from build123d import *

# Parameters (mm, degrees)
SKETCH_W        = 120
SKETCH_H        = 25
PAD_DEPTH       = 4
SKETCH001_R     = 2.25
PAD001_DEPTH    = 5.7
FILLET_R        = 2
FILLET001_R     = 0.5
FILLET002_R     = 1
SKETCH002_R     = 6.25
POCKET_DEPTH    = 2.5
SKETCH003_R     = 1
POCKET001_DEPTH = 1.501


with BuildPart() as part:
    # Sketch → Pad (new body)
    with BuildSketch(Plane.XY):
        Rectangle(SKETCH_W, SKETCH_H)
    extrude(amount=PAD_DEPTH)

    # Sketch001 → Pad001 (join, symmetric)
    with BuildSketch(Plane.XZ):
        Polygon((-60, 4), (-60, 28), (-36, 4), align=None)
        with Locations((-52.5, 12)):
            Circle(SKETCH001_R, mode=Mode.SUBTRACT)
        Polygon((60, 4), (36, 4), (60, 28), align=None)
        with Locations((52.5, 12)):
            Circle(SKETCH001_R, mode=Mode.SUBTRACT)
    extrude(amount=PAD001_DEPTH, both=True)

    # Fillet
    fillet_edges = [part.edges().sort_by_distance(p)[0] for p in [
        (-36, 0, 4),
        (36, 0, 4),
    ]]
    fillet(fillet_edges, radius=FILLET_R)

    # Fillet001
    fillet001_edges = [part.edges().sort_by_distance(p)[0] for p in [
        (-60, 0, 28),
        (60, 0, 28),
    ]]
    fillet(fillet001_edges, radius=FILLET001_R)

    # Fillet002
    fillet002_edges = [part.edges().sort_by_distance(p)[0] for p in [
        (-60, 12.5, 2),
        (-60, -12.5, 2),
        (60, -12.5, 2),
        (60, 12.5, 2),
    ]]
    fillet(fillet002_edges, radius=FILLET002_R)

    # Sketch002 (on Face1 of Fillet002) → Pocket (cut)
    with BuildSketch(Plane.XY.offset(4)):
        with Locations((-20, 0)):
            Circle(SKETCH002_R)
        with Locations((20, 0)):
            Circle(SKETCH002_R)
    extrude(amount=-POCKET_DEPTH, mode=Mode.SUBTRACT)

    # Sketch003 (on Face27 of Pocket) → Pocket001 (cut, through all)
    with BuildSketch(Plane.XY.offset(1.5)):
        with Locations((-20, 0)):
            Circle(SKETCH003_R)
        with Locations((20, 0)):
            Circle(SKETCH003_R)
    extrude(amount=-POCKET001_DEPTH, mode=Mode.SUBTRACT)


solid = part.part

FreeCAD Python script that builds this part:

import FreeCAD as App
import Part
import Sketcher


def edges_at(feature, points):
    """Names of the edges that pass closest to the given points."""
    edges = feature.Shape.Edges
    near = lambda p: min(range(len(edges)), key=lambda i: edges[i].distToShape(Part.Vertex(*p))[0])
    return sorted({f"Edge{near(p) + 1}" for p in points})

doc = App.newDocument("Part")
params = doc.addObject("Spreadsheet::Sheet", "Params")
for row, (alias, value) in enumerate([
    ("sketch1_width", "120 mm"),
    ("sketch1_height", "25 mm"),
    ("pad1_length", "4 mm"),
    ("sketch2_diameter", "4.5 mm"),
    ("sketch2_width", "24 mm"),
    ("pad2_length", "11.4 mm"),
    ("fillet_radius", "2 mm"),
    ("fillet2_radius", "0.5 mm"),
    ("fillet3_radius", "1 mm"),
    ("sketch3_diameter", "12.5 mm"),
    ("pocket1_length", "2.5 mm"),
    ("sketch4_diameter", "2 mm"),
], start=1):
    params.set(f"A{row}", alias)
    params.set(f"B{row}", "=" + value)
    params.setAlias(f"B{row}", alias)

body = doc.addObject("PartDesign::Body", "Body")

# Sketch on XY plane
sketch1 = doc.addObject("Sketcher::SketchObject", "Sketch")
body.addObject(sketch1)
sketch1.AttachmentSupport = (doc.XY_Plane, [""])
sketch1.MapMode = "FlatFace"
sketch1.addGeometry([
    Part.LineSegment(App.Vector(-60, 12, 0), App.Vector(-60, -12, 0)),
    Part.LineSegment(App.Vector(-60, -12, 0), App.Vector(60, -12, 0)),
    Part.LineSegment(App.Vector(60, -12, 0), App.Vector(60, 12, 0)),
    Part.LineSegment(App.Vector(60, 12, 0), App.Vector(-60, 12, 0)),
], False)
sketch1.addConstraint([
    Sketcher.Constraint("Coincident", 0, 2, 1, 1),
    Sketcher.Constraint("Coincident", 1, 2, 2, 1),
    Sketcher.Constraint("Coincident", 2, 2, 3, 1),
    Sketcher.Constraint("Coincident", 3, 2, 0, 1),
    Sketcher.Constraint("Vertical", 0),
    Sketcher.Constraint("Horizontal", 1),
    Sketcher.Constraint("Vertical", 2),
    Sketcher.Constraint("Horizontal", 3),
    Sketcher.Constraint("Symmetric", 0, 2, 2, 2, -1, 1),
    Sketcher.Constraint("DistanceX", 1, 1, 1, 2, 120.0),
    Sketcher.Constraint("DistanceY", 0, 2, 0, 1, 25.0),
])
sketch1.setExpression("Constraints[9]", "Params.sketch1_width")
sketch1.setExpression("Constraints[10]", "Params.sketch1_height")
pad1 = doc.addObject("PartDesign::Pad", "Pad")
body.addObject(pad1)
pad1.Profile = sketch1
pad1.setExpression("Length", "Params.pad1_length")

# Sketch on XZ plane
sketch2 = doc.addObject("Sketcher::SketchObject", "Sketch001")
body.addObject(sketch2)
sketch2.AttachmentSupport = (doc.XZ_Plane, [""])
sketch2.MapMode = "FlatFace"
sketch2.addGeometry([
    Part.LineSegment(App.Vector(-60, 28, 0), App.Vector(-60, 4, 0)),  # 0
    Part.LineSegment(App.Vector(-60, 4, 0), App.Vector(-36, 4, 0)),  # 1
    Part.LineSegment(App.Vector(-36, 4, 0), App.Vector(-60, 28, 0)),  # 2
    Part.Circle(App.Vector(-52.5, 12, 0), App.Vector(0, 0, 1), 2.2),  # 3
    Part.LineSegment(App.Vector(36, 4, 0), App.Vector(60, 4, 0)),  # 4
    Part.LineSegment(App.Vector(60, 4, 0), App.Vector(60, 28, 0)),  # 5
    Part.LineSegment(App.Vector(60, 28, 0), App.Vector(36, 4, 0)),  # 6
    Part.Circle(App.Vector(52.5, 12, 0), App.Vector(0, 0, 1), 2.2),  # 7
], False)
sketch2.addConstraint([
    Sketcher.Constraint("Coincident", 0, 2, 1, 1),
    Sketcher.Constraint("Coincident", 1, 2, 2, 1),
    Sketcher.Constraint("Coincident", 2, 2, 0, 1),
    Sketcher.Constraint("Coincident", 4, 2, 5, 1),
    Sketcher.Constraint("Coincident", 5, 2, 6, 1),
    Sketcher.Constraint("Coincident", 6, 2, 4, 1),
    Sketcher.Constraint("Vertical", 0),
    Sketcher.Constraint("Horizontal", 1),
    Sketcher.Constraint("Horizontal", 4),
    Sketcher.Constraint("Vertical", 5),
    Sketcher.Constraint("Equal", 3, 7),
    Sketcher.Constraint("Symmetric", 3, 3, 7, 3, -2),
    Sketcher.Constraint("Symmetric", 0, 2, 4, 2, -2),
    Sketcher.Constraint("Perpendicular", 2, 6),
    Sketcher.Constraint("Horizontal", 2, 2, 5, 2),
    Sketcher.Constraint("Equal", 1, 4),
    Sketcher.Constraint("Diameter", 3, 4.5),
    Sketcher.Constraint("DistanceX", 1, 1, 1, 2, 24.0),
    Sketcher.Constraint("DistanceY", -1, 1, 3, 3, 12.0),
    Sketcher.Constraint("DistanceX", 0, 2, -1, 1, 60.0),
    Sketcher.Constraint("DistanceY", -1, 1, 0, 2, 4.0),
    Sketcher.Constraint("DistanceX", 3, 3, 7, 3, 105.0),
])
sketch2.setExpression("Constraints[16]", "Params.sketch2_diameter")
sketch2.setExpression("Constraints[17]", "Params.sketch2_width")
pad2 = doc.addObject("PartDesign::Pad", "Pad001")
body.addObject(pad2)
pad2.Profile = sketch2
pad2.setExpression("Length", "Params.pad2_length")
pad2.Midplane = True
doc.recompute()

fillet = doc.addObject("PartDesign::Fillet", "Fillet")
body.addObject(fillet)
fillet.Base = (pad2, edges_at(pad2, [(-36, 0, 4), (36, 0, 4)]))
fillet.setExpression("Radius", "Params.fillet_radius")
doc.recompute()

fillet2 = doc.addObject("PartDesign::Fillet", "Fillet001")
body.addObject(fillet2)
fillet2.Base = (fillet, edges_at(fillet, [(-60, 0, 28), (60, 0, 28)]))
fillet2.setExpression("Radius", "Params.fillet2_radius")
doc.recompute()

fillet3 = doc.addObject("PartDesign::Fillet", "Fillet002")
body.addObject(fillet3)
fillet3.Base = (fillet2, edges_at(fillet2, [
    (-60, 12.5, 2),
    (-60, -12.5, 2),
    (60, -12.5, 2),
    (60, 12.5, 2),
]))
fillet3.setExpression("Radius", "Params.fillet3_radius")

# Sketch on XY plane
sketch3 = doc.addObject("Sketcher::SketchObject", "Sketch002")
body.addObject(sketch3)
sketch3.AttachmentSupport = (doc.XY_Plane, [""])
sketch3.MapMode = "FlatFace"
sketch3.AttachmentOffset = App.Placement(App.Vector(0, 0, 4), App.Rotation())
sketch3.addGeometry([
    Part.Circle(App.Vector(-20, 0, 0), App.Vector(0, 0, 1), 6),
    Part.Circle(App.Vector(20, 0, 0), App.Vector(0, 0, 1), 6),
], False)
sketch3.addConstraint([
    Sketcher.Constraint("Equal", 0, 1),
    Sketcher.Constraint("Symmetric", 0, 3, 1, 3, -1, 1),
    Sketcher.Constraint("PointOnObject", 0, 3, -1),
    Sketcher.Constraint("Diameter", 0, 12.5),
    Sketcher.Constraint("DistanceX", 0, 3, -1, 1, 20.0),
])
sketch3.setExpression("Constraints[3]", "Params.sketch3_diameter")
pocket1 = doc.addObject("PartDesign::Pocket", "Pocket")
body.addObject(pocket1)
pocket1.Profile = sketch3
pocket1.setExpression("Length", "Params.pocket1_length")

# Sketch on XY plane
sketch4 = doc.addObject("Sketcher::SketchObject", "Sketch003")
body.addObject(sketch4)
sketch4.AttachmentSupport = (doc.XY_Plane, [""])
sketch4.MapMode = "FlatFace"
sketch4.AttachmentOffset = App.Placement(App.Vector(0, 0, 1.5), App.Rotation())
sketch4.addGeometry([
    Part.Circle(App.Vector(-20, 0, 0), App.Vector(0, 0, 1), 1),
    Part.Circle(App.Vector(20, 0, 0), App.Vector(0, 0, 1), 1),
], False)
sketch4.addConstraint([
    Sketcher.Constraint("Equal", 0, 1),
    Sketcher.Constraint("Symmetric", 0, 3, 1, 3, -1, 1),
    Sketcher.Constraint("PointOnObject", 0, 3, -1),
    Sketcher.Constraint("Diameter", 0, 2.0),
    Sketcher.Constraint("DistanceX", 0, 3, -1, 1, 20.0),
])
sketch4.setExpression("Constraints[3]", "Params.sketch4_diameter")
pocket2 = doc.addObject("PartDesign::Pocket", "Pocket001")
body.addObject(pocket2)
pocket2.Profile = sketch4
pocket2.Type = "ThroughAll"

doc.recompute()
